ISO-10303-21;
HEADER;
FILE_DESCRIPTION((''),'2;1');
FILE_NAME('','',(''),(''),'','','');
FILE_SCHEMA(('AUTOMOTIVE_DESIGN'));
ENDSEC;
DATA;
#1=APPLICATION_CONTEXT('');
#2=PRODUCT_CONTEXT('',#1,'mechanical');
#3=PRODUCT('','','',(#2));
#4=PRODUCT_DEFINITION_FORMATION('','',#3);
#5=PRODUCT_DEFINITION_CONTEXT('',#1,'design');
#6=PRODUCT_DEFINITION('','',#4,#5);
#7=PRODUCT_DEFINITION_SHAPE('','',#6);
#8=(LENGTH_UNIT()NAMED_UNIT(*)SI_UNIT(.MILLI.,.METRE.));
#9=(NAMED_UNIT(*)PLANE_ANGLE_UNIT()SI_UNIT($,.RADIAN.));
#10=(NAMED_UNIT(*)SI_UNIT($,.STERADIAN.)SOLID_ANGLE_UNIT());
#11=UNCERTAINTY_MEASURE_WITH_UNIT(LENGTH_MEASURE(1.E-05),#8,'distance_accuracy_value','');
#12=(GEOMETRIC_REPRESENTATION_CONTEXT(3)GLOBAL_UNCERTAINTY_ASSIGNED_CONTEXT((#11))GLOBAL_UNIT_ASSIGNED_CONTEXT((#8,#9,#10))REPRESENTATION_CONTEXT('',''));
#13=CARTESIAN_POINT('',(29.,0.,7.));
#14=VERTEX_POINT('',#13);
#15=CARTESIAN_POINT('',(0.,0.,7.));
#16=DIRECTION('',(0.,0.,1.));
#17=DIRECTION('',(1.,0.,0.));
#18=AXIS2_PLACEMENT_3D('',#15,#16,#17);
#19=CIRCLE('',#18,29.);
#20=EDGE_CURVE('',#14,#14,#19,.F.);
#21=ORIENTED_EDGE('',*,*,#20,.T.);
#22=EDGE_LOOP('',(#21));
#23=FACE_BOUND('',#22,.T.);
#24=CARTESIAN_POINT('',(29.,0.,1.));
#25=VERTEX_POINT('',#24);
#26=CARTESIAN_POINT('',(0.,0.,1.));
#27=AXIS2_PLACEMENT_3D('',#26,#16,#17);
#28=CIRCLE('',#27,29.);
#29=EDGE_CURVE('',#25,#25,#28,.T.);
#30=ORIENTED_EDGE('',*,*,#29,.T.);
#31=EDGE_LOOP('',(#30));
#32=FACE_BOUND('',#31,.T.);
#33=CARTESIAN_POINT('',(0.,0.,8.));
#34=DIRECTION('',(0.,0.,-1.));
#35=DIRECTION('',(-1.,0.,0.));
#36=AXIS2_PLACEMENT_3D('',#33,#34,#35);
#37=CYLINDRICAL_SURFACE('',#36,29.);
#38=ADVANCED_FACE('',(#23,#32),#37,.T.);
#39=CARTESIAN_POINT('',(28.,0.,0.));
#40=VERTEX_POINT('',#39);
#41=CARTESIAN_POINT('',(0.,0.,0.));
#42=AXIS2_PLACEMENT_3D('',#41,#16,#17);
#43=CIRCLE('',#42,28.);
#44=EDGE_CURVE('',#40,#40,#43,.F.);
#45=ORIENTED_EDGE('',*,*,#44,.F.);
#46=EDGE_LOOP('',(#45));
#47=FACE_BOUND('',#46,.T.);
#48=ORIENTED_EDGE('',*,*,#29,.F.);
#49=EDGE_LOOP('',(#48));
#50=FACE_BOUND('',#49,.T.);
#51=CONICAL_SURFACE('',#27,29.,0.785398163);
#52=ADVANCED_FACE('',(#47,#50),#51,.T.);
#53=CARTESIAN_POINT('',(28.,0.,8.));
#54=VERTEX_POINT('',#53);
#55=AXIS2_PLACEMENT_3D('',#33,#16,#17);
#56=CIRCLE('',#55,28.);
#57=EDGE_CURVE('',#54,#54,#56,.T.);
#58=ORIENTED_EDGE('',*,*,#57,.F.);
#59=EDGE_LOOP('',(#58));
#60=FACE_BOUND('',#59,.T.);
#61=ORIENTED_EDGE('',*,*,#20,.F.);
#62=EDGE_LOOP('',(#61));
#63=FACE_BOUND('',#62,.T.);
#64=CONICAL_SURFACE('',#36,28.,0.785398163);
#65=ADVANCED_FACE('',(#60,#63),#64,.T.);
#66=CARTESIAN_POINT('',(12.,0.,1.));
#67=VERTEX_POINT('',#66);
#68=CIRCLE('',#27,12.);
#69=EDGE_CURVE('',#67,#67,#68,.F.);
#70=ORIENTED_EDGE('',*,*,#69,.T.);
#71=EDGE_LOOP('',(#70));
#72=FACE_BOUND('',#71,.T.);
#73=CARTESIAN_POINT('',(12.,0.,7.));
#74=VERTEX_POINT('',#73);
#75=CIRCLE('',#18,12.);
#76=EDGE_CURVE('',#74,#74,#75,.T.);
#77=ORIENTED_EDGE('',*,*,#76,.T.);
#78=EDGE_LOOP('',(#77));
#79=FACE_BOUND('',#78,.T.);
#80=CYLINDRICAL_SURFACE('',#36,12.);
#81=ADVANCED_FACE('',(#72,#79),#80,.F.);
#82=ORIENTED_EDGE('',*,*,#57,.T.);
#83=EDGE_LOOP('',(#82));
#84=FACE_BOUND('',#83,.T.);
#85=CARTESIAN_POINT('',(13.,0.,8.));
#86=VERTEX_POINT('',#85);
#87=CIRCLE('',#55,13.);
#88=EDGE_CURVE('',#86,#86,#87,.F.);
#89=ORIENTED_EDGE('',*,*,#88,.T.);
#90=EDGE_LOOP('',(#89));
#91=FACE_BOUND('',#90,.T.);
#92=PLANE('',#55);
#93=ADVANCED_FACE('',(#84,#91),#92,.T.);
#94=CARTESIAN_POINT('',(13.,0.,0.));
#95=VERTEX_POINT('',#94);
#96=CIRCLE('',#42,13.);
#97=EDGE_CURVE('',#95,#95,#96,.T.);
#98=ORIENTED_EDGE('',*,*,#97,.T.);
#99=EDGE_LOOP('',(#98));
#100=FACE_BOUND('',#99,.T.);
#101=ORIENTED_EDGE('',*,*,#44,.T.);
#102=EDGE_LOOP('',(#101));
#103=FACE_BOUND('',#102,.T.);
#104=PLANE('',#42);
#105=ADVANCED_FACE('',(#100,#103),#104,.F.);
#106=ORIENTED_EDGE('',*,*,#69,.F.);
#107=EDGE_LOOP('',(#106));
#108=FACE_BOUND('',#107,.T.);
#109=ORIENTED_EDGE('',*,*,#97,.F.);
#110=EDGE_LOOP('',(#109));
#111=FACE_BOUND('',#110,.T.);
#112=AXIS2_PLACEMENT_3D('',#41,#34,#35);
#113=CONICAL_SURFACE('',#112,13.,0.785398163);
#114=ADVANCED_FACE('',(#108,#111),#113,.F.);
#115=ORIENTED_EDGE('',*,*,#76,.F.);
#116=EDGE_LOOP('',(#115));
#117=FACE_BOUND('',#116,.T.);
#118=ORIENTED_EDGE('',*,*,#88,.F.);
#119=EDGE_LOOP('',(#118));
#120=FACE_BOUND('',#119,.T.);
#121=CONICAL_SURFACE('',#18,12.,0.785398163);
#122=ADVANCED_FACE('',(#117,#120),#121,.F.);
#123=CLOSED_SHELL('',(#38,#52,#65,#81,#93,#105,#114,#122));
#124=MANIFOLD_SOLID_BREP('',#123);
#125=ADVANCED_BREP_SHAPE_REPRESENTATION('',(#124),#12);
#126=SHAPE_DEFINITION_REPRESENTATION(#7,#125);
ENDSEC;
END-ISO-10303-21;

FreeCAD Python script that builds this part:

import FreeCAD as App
import Part
import Sketcher
Q = App.Units.Quantity


def edges_at(feature, points):
    """Names of the edges that pass closest to the given points."""
    edges = feature.Shape.Edges
    near = lambda p: min(range(len(edges)), key=lambda i: edges[i].distToShape(Part.Vertex(*p))[0])
    return sorted({f"Edge{near(p) + 1}" for p in points})

doc = App.newDocument("Part")
body = doc.addObject("PartDesign::Body", "Body")

# Sketch on XY plane
sketch1 = doc.addObject("Sketcher::SketchObject", "Sketch")
body.addObject(sketch1)
sketch1.AttachmentSupport = (doc.XY_Plane, [""])
sketch1.MapMode = "FlatFace"
sketch1.addGeometry(Part.Circle(App.Vector(0, 0, 0), App.Vector(0, 0, 1), 29), False)
sketch1.addGeometry(Part.Circle(App.Vector(0, 0, 0), App.Vector(0, 0, 1), 12), False)
sketch1.addConstraint(Sketcher.Constraint("Coincident", 0, 3, -1, 1))
sketch1.addConstraint(Sketcher.Constraint("Coincident", 1, 3, -1, 1))
sketch1.addConstraint(Sketcher.Constraint("Diameter", 0, Q("58 mm")))
sketch1.addConstraint(Sketcher.Constraint("Diameter", 1, Q("24 mm")))
pad1 = doc.addObject("PartDesign::Pad", "Pad")
body.addObject(pad1)
pad1.Profile = sketch1
pad1.Length = 8
doc.recompute()

chamfer = doc.addObject("PartDesign::Chamfer", "Chamfer")
body.addObject(chamfer)
chamfer.Base = (pad1, edges_at(pad1, [(-12, 0, 0), (-12, 0, 8)]))
chamfer.Size = 1
doc.recompute()

chamfer2 = doc.addObject("PartDesign::Chamfer", "Chamfer001")
body.addObject(chamfer2)
chamfer2.Base = (chamfer, edges_at(chamfer, [(-29, 0, 0), (-29, 0, 8)]))
chamfer2.Size = 1

doc.recompute()
